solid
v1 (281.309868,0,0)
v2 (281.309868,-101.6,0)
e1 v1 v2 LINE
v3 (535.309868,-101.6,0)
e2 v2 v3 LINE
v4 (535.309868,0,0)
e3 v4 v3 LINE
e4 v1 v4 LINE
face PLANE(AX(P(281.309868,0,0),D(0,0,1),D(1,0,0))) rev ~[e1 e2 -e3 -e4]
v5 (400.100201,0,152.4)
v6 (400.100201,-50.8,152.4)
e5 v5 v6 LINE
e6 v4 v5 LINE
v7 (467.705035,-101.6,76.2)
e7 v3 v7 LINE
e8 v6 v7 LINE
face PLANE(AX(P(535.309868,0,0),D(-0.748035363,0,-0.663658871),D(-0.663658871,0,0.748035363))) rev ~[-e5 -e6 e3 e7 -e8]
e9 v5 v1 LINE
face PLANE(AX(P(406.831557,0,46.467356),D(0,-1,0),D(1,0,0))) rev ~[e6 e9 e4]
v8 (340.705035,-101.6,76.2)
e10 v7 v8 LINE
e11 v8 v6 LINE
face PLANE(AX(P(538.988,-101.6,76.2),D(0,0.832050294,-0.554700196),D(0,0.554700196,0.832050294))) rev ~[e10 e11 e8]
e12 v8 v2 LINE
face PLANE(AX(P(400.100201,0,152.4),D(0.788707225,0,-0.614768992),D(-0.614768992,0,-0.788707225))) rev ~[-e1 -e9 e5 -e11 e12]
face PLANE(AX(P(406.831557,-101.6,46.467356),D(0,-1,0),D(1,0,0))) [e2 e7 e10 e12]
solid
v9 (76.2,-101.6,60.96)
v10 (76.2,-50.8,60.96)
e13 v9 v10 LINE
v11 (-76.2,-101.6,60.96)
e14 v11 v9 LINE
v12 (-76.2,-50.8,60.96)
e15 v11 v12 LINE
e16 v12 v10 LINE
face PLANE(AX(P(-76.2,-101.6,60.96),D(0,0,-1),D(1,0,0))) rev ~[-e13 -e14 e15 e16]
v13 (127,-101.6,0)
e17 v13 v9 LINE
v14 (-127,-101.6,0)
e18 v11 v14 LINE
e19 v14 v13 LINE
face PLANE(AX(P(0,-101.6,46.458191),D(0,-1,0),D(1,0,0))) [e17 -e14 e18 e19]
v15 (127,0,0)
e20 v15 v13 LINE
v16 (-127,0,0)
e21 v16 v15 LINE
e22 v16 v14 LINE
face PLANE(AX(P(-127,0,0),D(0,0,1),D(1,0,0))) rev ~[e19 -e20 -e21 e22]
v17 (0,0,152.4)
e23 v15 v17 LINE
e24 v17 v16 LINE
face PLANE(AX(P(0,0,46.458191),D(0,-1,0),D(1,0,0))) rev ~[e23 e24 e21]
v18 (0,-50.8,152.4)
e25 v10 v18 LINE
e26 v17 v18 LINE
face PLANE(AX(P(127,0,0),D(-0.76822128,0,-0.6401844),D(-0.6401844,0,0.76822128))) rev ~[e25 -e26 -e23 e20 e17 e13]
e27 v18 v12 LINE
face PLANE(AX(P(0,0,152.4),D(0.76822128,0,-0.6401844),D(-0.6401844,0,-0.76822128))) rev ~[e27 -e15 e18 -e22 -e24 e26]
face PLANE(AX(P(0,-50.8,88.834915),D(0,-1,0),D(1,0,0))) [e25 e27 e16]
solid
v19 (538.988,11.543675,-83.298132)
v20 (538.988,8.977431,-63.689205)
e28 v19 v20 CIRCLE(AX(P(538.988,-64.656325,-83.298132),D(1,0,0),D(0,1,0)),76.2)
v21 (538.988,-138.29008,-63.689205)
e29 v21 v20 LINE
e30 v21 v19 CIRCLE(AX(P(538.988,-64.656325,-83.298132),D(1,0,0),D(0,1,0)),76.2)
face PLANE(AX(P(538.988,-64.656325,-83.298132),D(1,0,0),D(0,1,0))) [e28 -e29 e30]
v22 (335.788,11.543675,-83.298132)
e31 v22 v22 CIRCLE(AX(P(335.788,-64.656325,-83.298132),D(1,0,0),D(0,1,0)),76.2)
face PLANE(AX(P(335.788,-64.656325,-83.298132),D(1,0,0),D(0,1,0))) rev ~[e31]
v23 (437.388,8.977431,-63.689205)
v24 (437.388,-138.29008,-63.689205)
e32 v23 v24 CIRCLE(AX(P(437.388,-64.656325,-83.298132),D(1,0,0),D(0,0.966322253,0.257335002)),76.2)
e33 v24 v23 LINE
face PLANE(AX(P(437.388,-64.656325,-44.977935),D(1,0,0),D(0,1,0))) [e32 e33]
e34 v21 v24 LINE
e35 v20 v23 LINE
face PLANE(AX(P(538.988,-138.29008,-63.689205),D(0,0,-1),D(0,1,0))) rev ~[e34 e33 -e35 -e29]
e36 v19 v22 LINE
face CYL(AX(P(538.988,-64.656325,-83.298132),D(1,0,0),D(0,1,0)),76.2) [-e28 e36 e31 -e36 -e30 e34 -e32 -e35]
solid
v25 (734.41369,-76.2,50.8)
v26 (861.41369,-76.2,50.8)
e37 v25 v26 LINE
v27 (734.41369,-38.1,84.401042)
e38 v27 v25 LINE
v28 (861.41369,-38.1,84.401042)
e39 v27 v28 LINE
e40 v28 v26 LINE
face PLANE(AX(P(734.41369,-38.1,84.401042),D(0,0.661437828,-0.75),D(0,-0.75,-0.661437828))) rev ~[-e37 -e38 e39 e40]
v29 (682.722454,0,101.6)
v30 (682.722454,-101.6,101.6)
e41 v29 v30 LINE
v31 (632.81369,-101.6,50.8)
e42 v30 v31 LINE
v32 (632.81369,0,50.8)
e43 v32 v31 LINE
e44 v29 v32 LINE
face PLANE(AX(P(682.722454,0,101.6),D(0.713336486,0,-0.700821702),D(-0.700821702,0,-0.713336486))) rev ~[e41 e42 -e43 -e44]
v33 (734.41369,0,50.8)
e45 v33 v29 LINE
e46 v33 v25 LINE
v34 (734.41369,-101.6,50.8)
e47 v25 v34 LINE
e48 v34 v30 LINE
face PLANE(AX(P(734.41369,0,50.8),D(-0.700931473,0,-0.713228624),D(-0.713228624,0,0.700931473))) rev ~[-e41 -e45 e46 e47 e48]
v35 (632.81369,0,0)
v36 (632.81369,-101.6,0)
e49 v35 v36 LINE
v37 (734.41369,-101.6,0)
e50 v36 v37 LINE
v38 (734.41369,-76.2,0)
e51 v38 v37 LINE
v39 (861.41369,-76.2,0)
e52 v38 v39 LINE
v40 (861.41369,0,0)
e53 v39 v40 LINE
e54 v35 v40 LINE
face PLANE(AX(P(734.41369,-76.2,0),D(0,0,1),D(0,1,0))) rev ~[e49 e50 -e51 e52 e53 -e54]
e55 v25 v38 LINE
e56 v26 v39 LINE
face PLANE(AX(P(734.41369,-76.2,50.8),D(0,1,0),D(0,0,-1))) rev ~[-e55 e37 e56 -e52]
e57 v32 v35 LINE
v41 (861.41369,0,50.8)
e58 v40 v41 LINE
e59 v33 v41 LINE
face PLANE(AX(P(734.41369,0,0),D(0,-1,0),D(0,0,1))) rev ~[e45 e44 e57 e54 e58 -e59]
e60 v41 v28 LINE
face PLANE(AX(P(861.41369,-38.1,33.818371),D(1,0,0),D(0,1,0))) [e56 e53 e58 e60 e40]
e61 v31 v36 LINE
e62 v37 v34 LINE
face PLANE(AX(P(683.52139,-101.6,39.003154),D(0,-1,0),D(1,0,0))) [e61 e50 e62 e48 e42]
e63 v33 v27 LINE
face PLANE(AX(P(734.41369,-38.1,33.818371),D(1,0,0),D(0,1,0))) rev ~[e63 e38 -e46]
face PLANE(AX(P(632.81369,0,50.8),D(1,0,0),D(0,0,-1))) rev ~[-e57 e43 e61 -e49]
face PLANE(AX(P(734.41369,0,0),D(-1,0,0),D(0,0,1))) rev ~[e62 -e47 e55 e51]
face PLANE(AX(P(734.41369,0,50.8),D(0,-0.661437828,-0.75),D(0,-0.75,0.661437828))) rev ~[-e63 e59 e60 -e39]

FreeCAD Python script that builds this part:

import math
import FreeCAD as App
import Part
import Sketcher
from FreeCAD import Vector
Q = App.Units.Quantity

doc = App.newDocument("Part")
body = doc.addObject("PartDesign::Body", "Body")

# Sketch on XZ plane
sketch1 = doc.addObject("Sketcher::SketchObject", "Sketch")
body.addObject(sketch1)
sketch1.AttachmentSupport = (doc.XZ_Plane, [""])
sketch1.MapMode = "FlatFace"
sketch1.addGeometry(Part.LineSegment(Vector(0, 152, 0), Vector(-127, 0, 0)), False)
sketch1.addGeometry(Part.LineSegment(Vector(-127, 0, 0), Vector(127, 0, 0)), False)
sketch1.addGeometry(Part.LineSegment(Vector(127, 0, 0), Vector(0, 152, 0)), False)
sketch1.addConstraint(Sketcher.Constraint("Coincident", 0, 2, 1, 1))
sketch1.addConstraint(Sketcher.Constraint("Coincident", 1, 2, 2, 1))
sketch1.addConstraint(Sketcher.Constraint("Coincident", 2, 2, 0, 1))
sketch1.addConstraint(Sketcher.Constraint("Horizontal", 1))
sketch1.addConstraint(Sketcher.Constraint("Symmetric", 0, 2, 1, 2, -1, 1))
sketch1.addConstraint(Sketcher.Constraint("PointOnObject", 2, 2, -2))
sketch1.addConstraint(Sketcher.Constraint("DistanceX", 1, 1, 1, 2, Q("10 in")))
sketch1.addConstraint(Sketcher.Constraint("DistanceY", -1, 1, 2, 2, Q("6 in")))
pad1 = doc.addObject("PartDesign::Pad", "Pad")
body.addObject(pad1)
pad1.Profile = sketch1
pad1.Length = Q("4 in")

# Sketch on XZ plane
sketch2 = doc.addObject("Sketcher::SketchObject", "Sketch001")
body.addObject(sketch2)
sketch2.AttachmentSupport = (doc.XZ_Plane, [""])
sketch2.MapMode = "FlatFace"
sketch2.AttachmentOffset = App.Placement(Vector(0, 0, 4 * 25.4), App.Rotation())
sketch2.addGeometry(Part.LineSegment(Vector(0, 152, 0), Vector(-76, 61, 0)), False)
sketch2.addGeometry(Part.LineSegment(Vector(-76, 61, 0), Vector(76, 61, 0)), False)
sketch2.addGeometry(Part.LineSegment(Vector(76, 61, 0), Vector(0, 152, 0)), False)
sketch2.addConstraint(Sketcher.Constraint("Coincident", 0, 2, 1, 1))
sketch2.addConstraint(Sketcher.Constraint("Coincident", 1, 2, 2, 1))
sketch2.addConstraint(Sketcher.Constraint("Coincident", 2, 2, 0, 1))
sketch2.addConstraint(Sketcher.Constraint("Horizontal", 1))
sketch2.addConstraint(Sketcher.Constraint("PointOnObject", 2, 2, -2))
sketch2.addConstraint(Sketcher.Constraint("Equal", 0, 2))
sketch2.addConstraint(Sketcher.Constraint("DistanceX", 1, 1, 1, 2, Q("6 in")))
sketch2.addConstraint(Sketcher.Constraint("DistanceY", -1, 1, 2, 2, Q("6 in")))
sketch2.addConstraint(Sketcher.Constraint("DistanceY", -1, 1, 0, 2, Q("2.4 in")))
pocket1 = doc.addObject("PartDesign::Pocket", "Pocket")
body.addObject(pocket1)
pocket1.Profile = sketch2
pocket1.Length = Q("2 in")
body2 = doc.addObject("PartDesign::Body", "Body001")

# Sketch on XZ plane
sketch3 = doc.addObject("Sketcher::SketchObject", "Sketch002")
body2.addObject(sketch3)
sketch3.AttachmentSupport = (doc.getObject("XZ_Plane001"), [""])
sketch3.MapMode = "FlatFace"
sketch3.addGeometry(Part.LineSegment(Vector(400, 152, 0), Vector(281, 0, 0)), False)
sketch3.addGeometry(Part.LineSegment(Vector(281, 0, 0), Vector(535, 0, 0)), False)
sketch3.addGeometry(Part.LineSegment(Vector(535, 0, 0), Vector(400, 152, 0)), False)
sketch3.addConstraint(Sketcher.Constraint("Coincident", 0, 2, 1, 1))
sketch3.addConstraint(Sketcher.Constraint("Coincident", 1, 2, 2, 1))
sketch3.addConstraint(Sketcher.Constraint("Coincident", 2, 2, 0, 1))
sketch3.addConstraint(Sketcher.Constraint("Horizontal", 1))
sketch3.addConstraint(Sketcher.Constraint("PointOnObject", 0, 2, -1))
sketch3.addConstraint(Sketcher.Constraint("DistanceX", 1, 1, 1, 2, Q("10 in")))
sketch3.addConstraint(Sketcher.Constraint("DistanceY", -1, 1, 2, 2, Q("6 in")))
sketch3.addConstraint(Sketcher.Constraint("DistanceX", -1, 1, 2, 2, Q("400.100201 mm")))
sketch3.addConstraint(Sketcher.Constraint("Distance", 0, Q("193.227595 mm")))
pad2 = doc.addObject("PartDesign::Pad", "Pad001")
body2.addObject(pad2)
pad2.Profile = sketch3
pad2.Length = Q("4 in")

# Sketch on YZ plane
sketch4 = doc.addObject("Sketcher::SketchObject", "Sketch003")
body2.addObject(sketch4)
sketch4.AttachmentSupport = (doc.getObject("YZ_Plane001"), [""])
sketch4.MapMode = "FlatFace"
sketch4.AttachmentOffset = App.Placement(Vector(0, 0, 21.22 * 25.4), App.Rotation())
sketch4.addGeometry(Part.LineSegment(Vector(-102, 152, 0), Vector(-102, 76, 0)), False)
sketch4.addGeometry(Part.LineSegment(Vector(-102, 76, 0), Vector(-51, 152, 0)), False)
sketch4.addGeometry(Part.LineSegment(Vector(-51, 152, 0), Vector(-102, 152, 0)), False)
sketch4.addConstraint(Sketcher.Constraint("Coincident", 0, 2, 1, 1))
sketch4.addConstraint(Sketcher.Constraint("Coincident", 1, 2, 2, 1))
sketch4.addConstraint(Sketcher.Constraint("Coincident", 2, 2, 0, 1))
sketch4.addConstraint(Sketcher.Constraint("Vertical", 0))
sketch4.addConstraint(Sketcher.Constraint("Horizontal", 2))
sketch4.addConstraint(Sketcher.Constraint("DistanceX", 2, 2, 2, 1, Q("2 in")))
sketch4.addConstraint(Sketcher.Constraint("DistanceY", 0, 2, 0, 1, Q("3 in")))
sketch4.addConstraint(Sketcher.Constraint("DistanceX", 0, 2, -1, 1, Q("4 in")))
sketch4.addConstraint(Sketcher.Constraint("DistanceY", -1, 1, 0, 2, Q("3 in")))
pocket2 = doc.addObject("PartDesign::Pocket", "Pocket001")
body2.addObject(pocket2)
pocket2.Profile = sketch4
pocket2.Length = Q("9.5 in")
body3 = doc.addObject("PartDesign::Body", "Body002")

# Sketch on XZ plane
sketch5 = doc.addObject("Sketcher::SketchObject", "Sketch004")
body3.addObject(sketch5)
sketch5.AttachmentSupport = (doc.getObject("XZ_Plane002"), [""])
sketch5.MapMode = "FlatFace"
sketch5.addGeometry(Part.LineSegment(Vector(683, 102, 0), Vector(633, 51, 0)), False)
sketch5.addGeometry(Part.LineSegment(Vector(633, 51, 0), Vector(633, 0, 0)), False)
sketch5.addGeometry(Part.LineSegment(Vector(633, 0, 0), Vector(734, 0, 0)), False)
sketch5.addGeometry(Part.LineSegment(Vector(734, 0, 0), Vector(734, 51, 0)), False)
sketch5.addGeometry(Part.LineSegment(Vector(734, 51, 0), Vector(683, 102, 0)), False)
sketch5.addConstraint(Sketcher.Constraint("Coincident", 0, 2, 1, 1))
sketch5.addConstraint(Sketcher.Constraint("Coincident", 1, 2, 2, 1))
sketch5.addConstraint(Sketcher.Constraint("Coincident", 2, 2, 3, 1))
sketch5.addConstraint(Sketcher.Constraint("Coincident", 3, 2, 4, 1))
sketch5.addConstraint(Sketcher.Constraint("Coincident", 4, 2, 0, 1))
sketch5.addConstraint(Sketcher.Constraint("Vertical", 1))
sketch5.addConstraint(Sketcher.Constraint("Horizontal", 2))
sketch5.addConstraint(Sketcher.Constraint("Vertical", 3))
sketch5.addConstraint(Sketcher.Constraint("PointOnObject", 1, 2, -1))
sketch5.addConstraint(Sketcher.Constraint("Horizontal", 0, 2, 3, 2))
sketch5.addConstraint(Sketcher.Constraint("DistanceX", 2, 1, 2, 2, Q("4 in")))
sketch5.addConstraint(Sketcher.Constraint("DistanceY", 1, 2, 1, 1, Q("2 in")))
sketch5.addConstraint(Sketcher.Constraint("DistanceY", -1, 1, 4, 2, Q("4 in")))
sketch5.addConstraint(Sketcher.Constraint("Distance", 0, Q("71.214639 mm")))
sketch5.addConstraint(Sketcher.Constraint("DistanceX", -1, 1, 0, 2, Q("632.81369 mm")))
pad3 = doc.addObject("PartDesign::Pad", "Pad002")
body3.addObject(pad3)
pad3.Profile = sketch5
pad3.Length = Q("4 in")

# Sketch on YZ plane
sketch6 = doc.addObject("Sketcher::SketchObject", "Sketch005")
body3.addObject(sketch6)
sketch6.AttachmentSupport = (doc.getObject("YZ_Plane002"), [""])
sketch6.MapMode = "FlatFace"
sketch6.AttachmentOffset = App.Placement(Vector(0, 0, 734.41369), App.Rotation())
sketch6.addGeometry(Part.LineSegment(Vector(-76, 0, 0), Vector(0, 0, 0)), False)
sketch6.addGeometry(Part.LineSegment(Vector(0, 0, 0), Vector(0, 51, 0)), False)
sketch6.addGeometry(Part.LineSegment(Vector(0, 51, 0), Vector(-38, 84, 0)), False)
sketch6.addGeometry(Part.LineSegment(Vector(-38, 84, 0), Vector(-76, 51, 0)), False)
sketch6.addGeometry(Part.LineSegment(Vector(-76, 51, 0), Vector(-76, 0, 0)), False)
sketch6.addConstraint(Sketcher.Constraint("Coincident", 0, 2, 1, 1))
sketch6.addConstraint(Sketcher.Constraint("Coincident", 1, 2, 2, 1))
sketch6.addConstraint(Sketcher.Constraint("Coincident", 2, 2, 3, 1))
sketch6.addConstraint(Sketcher.Constraint("Coincident", 3, 2, 4, 1))
sketch6.addConstraint(Sketcher.Constraint("Coincident", 4, 2, 0, 1))
sketch6.addConstraint(Sketcher.Constraint("Horizontal", 0))
sketch6.addConstraint(Sketcher.Constraint("Vertical", 1))
sketch6.addConstraint(Sketcher.Constraint("Vertical", 4))
sketch6.addConstraint(Sketcher.Constraint("Coincident", 0, 2, -1, 1))
sketch6.addConstraint(Sketcher.Constraint("Horizontal", 1, 2, 3, 2))
sketch6.addConstraint(Sketcher.Constraint("Equal", 2, 3))
sketch6.addConstraint(Sketcher.Constraint("DistanceX", 0, 1, 0, 2, Q("3 in")))
sketch6.addConstraint(Sketcher.Constraint("DistanceY", 1, 1, 1, 2, Q("2 in")))
sketch6.addConstraint(Sketcher.Constraint("Distance", 2, Q("2 in")))
pad4 = doc.addObject("PartDesign::Pad", "Pad003")
body3.addObject(pad4)
pad4.Profile = sketch6
pad4.Length = Q("5 in")
body4 = doc.addObject("PartDesign::Body", "Body003")

# Sketch on YZ plane
sketch7 = doc.addObject("Sketcher::SketchObject", "Sketch006")
body4.addObject(sketch7)
sketch7.AttachmentSupport = (doc.getObject("YZ_Plane003"), [""])
sketch7.MapMode = "FlatFace"
sketch7.AttachmentOffset = App.Placement(Vector(0, 0, 21.22 * 25.4), App.Rotation())
sketch7.addGeometry(Part.Circle(Vector(-65, -83, 0), Vector(0, 0, 1), 76), False)
sketch7.addConstraint(Sketcher.Constraint("Diameter", 0, Q("6 in")))
sketch7.addConstraint(Sketcher.Constraint("DistanceY", 0, 3, -1, 1, Q("83.298132 mm")))
sketch7.addConstraint(Sketcher.Constraint("DistanceX", 0, 3, -1, 1, Q("64.656325 mm")))
pad5 = doc.addObject("PartDesign::Pad", "Pad004")
body4.addObject(pad5)
pad5.Profile = sketch7
pad5.Length = Q("8 in")
pad5.Reversed = True

# Sketch on YZ plane
sketch8 = doc.addObject("Sketcher::SketchObject", "Sketch007")
body4.addObject(sketch8)
sketch8.AttachmentSupport = (doc.getObject("YZ_Plane003"), [""])
sketch8.MapMode = "FlatFace"
sketch8.AttachmentOffset = App.Placement(Vector(0, 0, 21.22 * 25.4), App.Rotation())
sketch8.addGeometry(Part.ArcOfCircle(Part.Circle(Vector(-65, -83, 0), Vector(0, 0, 1), 76), math.radians(15), math.radians(165)), False)
sketch8.addGeometry(Part.LineSegment(Vector(-138, -64, 0), Vector(9, -64, 0)), False)
sketch8.addConstraint(Sketcher.Constraint("Coincident", 0, 1, 1, 2))
sketch8.addConstraint(Sketcher.Constraint("Coincident", 1, 1, 0, 2))
sketch8.addConstraint(Sketcher.Constraint("Horizontal", 1))
sketch8.addConstraint(Sketcher.Constraint("Radius", 0, Q("3 in")))
sketch8.addConstraint(Sketcher.Constraint("DistanceX", 1, 1, 1, 2, Q("147.267511 mm")))
sketch8.addConstraint(Sketcher.Constraint("DistanceY", 0, 3, -1, 1, Q("83.298132 mm")))
sketch8.addConstraint(Sketcher.Constraint("DistanceX", -1, 1, 0, 1, Q("8.977431 mm")))
pocket3 = doc.addObject("PartDesign::Pocket", "Pocket002")
body4.addObject(pocket3)
pocket3.Profile = sketch8
pocket3.Length = Q("4 in")

doc.recompute()
